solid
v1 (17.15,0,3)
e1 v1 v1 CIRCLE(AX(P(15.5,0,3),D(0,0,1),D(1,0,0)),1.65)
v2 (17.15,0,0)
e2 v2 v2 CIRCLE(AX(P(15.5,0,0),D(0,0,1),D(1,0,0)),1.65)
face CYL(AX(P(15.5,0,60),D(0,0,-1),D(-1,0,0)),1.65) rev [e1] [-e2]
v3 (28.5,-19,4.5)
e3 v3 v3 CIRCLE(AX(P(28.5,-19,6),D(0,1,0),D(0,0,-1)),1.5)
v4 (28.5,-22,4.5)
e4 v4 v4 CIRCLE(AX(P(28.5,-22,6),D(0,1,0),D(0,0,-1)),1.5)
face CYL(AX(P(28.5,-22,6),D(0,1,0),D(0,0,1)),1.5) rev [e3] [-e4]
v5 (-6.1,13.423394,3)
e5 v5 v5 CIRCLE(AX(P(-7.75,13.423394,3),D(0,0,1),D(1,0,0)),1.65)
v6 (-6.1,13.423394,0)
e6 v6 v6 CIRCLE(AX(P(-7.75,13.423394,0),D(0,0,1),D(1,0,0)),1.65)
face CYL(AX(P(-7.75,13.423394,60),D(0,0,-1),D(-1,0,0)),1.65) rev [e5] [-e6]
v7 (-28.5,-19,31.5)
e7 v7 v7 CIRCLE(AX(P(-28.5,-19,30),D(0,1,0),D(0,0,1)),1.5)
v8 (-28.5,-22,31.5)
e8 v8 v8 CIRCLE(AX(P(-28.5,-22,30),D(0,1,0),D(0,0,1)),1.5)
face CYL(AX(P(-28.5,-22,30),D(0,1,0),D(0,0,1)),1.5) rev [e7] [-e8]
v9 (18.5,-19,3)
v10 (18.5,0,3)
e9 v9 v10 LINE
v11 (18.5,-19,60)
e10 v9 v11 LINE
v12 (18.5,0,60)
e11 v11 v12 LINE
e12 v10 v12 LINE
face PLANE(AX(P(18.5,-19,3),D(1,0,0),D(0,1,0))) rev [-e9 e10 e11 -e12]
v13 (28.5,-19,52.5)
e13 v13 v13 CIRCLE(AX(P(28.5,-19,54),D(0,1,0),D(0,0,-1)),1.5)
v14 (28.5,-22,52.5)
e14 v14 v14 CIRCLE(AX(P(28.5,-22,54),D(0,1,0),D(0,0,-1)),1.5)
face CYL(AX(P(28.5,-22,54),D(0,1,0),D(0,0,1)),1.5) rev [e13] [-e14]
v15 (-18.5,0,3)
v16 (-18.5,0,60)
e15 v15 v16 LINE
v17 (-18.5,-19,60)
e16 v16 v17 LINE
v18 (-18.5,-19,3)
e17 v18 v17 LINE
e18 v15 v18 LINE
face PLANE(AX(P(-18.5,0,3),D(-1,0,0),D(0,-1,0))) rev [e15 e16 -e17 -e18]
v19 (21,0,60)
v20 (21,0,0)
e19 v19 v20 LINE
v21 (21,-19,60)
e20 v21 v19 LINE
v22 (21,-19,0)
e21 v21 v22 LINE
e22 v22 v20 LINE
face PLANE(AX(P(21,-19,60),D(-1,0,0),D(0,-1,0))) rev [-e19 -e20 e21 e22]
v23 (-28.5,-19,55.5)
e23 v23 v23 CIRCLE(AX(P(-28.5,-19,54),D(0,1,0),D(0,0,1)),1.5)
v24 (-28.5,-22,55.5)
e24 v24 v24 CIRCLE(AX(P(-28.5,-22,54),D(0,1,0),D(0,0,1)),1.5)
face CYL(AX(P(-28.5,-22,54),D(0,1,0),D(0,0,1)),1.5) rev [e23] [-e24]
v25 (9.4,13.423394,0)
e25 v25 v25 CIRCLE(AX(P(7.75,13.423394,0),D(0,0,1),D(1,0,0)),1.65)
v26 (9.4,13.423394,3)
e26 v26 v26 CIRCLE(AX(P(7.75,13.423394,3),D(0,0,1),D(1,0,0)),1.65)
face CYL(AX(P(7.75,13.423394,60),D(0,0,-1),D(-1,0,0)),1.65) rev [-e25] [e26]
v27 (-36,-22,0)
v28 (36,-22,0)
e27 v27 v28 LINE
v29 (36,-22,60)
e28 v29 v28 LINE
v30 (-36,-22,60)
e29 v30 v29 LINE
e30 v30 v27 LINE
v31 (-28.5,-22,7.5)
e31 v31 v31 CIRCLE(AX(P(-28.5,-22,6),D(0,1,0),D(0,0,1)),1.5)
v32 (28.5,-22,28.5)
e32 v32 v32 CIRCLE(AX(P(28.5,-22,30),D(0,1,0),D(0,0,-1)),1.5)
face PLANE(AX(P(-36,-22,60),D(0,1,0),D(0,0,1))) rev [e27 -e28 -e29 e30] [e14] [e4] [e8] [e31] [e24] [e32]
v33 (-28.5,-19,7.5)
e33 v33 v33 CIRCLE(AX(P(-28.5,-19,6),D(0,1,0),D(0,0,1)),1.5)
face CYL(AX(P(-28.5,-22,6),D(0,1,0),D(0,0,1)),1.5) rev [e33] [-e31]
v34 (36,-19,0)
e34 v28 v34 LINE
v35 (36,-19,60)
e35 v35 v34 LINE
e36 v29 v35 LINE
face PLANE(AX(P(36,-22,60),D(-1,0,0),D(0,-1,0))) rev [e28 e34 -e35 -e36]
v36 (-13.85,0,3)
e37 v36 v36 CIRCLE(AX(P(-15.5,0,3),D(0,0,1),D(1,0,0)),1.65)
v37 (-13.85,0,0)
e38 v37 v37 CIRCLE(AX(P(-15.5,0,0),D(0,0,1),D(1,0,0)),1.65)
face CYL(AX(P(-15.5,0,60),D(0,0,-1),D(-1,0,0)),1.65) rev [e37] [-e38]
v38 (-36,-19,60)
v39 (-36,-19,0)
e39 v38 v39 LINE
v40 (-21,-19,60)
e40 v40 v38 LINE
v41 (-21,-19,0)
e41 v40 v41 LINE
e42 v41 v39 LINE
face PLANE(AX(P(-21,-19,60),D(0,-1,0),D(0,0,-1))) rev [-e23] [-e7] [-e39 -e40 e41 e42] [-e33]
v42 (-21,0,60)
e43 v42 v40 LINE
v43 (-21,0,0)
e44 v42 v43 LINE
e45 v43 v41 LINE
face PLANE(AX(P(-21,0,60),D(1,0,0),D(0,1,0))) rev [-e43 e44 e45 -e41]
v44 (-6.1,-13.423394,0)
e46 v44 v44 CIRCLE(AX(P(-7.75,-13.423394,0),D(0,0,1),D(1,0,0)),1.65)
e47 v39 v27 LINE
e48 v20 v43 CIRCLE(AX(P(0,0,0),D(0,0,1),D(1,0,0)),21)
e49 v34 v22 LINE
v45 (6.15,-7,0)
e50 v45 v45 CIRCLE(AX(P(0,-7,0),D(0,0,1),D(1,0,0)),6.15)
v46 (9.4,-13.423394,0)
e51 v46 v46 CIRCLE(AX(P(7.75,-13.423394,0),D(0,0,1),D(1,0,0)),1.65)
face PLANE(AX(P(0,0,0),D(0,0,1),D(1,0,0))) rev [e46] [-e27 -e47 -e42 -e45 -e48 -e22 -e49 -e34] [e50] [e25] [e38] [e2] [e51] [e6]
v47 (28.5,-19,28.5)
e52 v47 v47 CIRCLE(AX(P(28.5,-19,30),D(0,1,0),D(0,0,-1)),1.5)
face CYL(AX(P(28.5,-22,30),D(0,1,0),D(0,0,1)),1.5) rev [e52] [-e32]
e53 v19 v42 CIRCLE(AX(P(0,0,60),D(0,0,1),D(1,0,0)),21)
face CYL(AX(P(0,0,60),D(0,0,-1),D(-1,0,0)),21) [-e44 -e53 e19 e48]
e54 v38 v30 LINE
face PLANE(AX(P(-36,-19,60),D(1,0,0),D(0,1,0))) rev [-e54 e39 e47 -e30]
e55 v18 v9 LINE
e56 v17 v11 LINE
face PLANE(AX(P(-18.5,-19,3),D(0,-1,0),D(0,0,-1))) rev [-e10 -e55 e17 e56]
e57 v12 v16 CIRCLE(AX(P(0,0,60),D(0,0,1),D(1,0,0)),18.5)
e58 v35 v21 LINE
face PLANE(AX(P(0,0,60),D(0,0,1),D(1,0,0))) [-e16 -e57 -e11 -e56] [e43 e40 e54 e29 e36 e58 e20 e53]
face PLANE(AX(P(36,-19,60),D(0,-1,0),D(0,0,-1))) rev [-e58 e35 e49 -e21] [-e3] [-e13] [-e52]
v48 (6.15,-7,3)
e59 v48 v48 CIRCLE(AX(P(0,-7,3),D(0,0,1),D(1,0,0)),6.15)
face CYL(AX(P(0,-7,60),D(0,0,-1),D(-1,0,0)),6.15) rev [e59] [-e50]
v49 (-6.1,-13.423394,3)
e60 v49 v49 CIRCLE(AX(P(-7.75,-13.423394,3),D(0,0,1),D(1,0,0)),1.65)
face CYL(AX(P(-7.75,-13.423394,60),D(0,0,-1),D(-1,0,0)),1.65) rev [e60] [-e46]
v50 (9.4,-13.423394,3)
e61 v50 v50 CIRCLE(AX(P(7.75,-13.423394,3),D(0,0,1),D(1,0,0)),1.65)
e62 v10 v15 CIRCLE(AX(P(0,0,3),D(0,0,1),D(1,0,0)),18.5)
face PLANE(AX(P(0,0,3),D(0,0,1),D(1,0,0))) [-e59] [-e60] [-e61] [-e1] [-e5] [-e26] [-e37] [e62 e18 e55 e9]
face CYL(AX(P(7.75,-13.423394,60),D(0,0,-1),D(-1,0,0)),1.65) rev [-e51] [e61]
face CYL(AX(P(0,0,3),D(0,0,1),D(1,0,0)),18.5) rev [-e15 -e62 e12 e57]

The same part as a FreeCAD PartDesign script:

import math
import FreeCAD as App
import Part
import Sketcher

doc = App.newDocument("Part")
params = doc.addObject("Spreadsheet::Sheet", "Params")
for row, (alias, value) in enumerate([
    ("sketch1_radius", "21 mm"),
    ("sketch1_diameter", "3.3 mm"),
    ("sketch1_diameter2", "12.3 mm"),
    ("sketch1_width", "15 mm"),
    ("sketch1_height", "19 mm"),
    ("pad1_length", "60 mm"),
    ("sketch2_radius", "18.5 mm"),
    ("sketch2_height", "19 mm"),
    ("pocket1_length", "57 mm"),
    ("sketch3_diameter", "3 mm"),
], start=1):
    params.set(f"A{row}", alias)
    params.set(f"B{row}", "=" + value)
    params.setAlias(f"B{row}", alias)

body = doc.addObject("PartDesign::Body", "Body")

# Sketch on XY plane
sketch1 = doc.addObject("Sketcher::SketchObject", "Sketch")
body.addObject(sketch1)
sketch1.AttachmentSupport = (doc.XY_Plane, [""])
sketch1.MapMode = "FlatFace"
sketch1.addGeometry(Part.LineSegment(App.Vector(-21, 0, 0), App.Vector(-21, -19, 0)), False)
sketch1.addGeometry(Part.LineSegment(App.Vector(-21, -19, 0), App.Vector(-36, -19, 0)), False)
sketch1.addGeometry(Part.LineSegment(App.Vector(-36, -19, 0), App.Vector(-36, -22, 0)), False)
sketch1.addGeometry(Part.LineSegment(App.Vector(-36, -22, 0), App.Vector(36, -22, 0)), False)
sketch1.addGeometry(Part.LineSegment(App.Vector(36, -22, 0), App.Vector(36, -19, 0)), False)
sketch1.addGeometry(Part.LineSegment(App.Vector(36, -19, 0), App.Vector(21, -19, 0)), False)
sketch1.addGeometry(Part.LineSegment(App.Vector(21, -19, 0), App.Vector(21, 0, 0)), False)
sketch1.addGeometry(Part.ArcOfCircle(Part.Circle(App.Vector(0, 0, 0), App.Vector(0, 0, 1), 21), math.radians(0), math.radians(180)), False)
sketch1.addGeometry(Part.Circle(App.Vector(-7.8, -13.4, 0), App.Vector(0, 0, 1), 1.6), False)
sketch1.addGeometry(Part.Circle(App.Vector(7.8, -13.4, 0), App.Vector(0, 0, 1), 1.6), False)
sketch1.addGeometry(Part.Circle(App.Vector(0, -7, 0), App.Vector(0, 0, 1), 6.2), False)
sketch1.addGeometry(Part.Circle(App.Vector(-15.5, 0, 0), App.Vector(0, 0, 1), 1.6), False)
sketch1.addGeometry(Part.Circle(App.Vector(-7.8, 13.4, 0), App.Vector(0, 0, 1), 1.6), False)
sketch1.addGeometry(Part.Circle(App.Vector(15.5, 0, 0), App.Vector(0, 0, 1), 1.6), False)
sketch1.addGeometry(Part.Circle(App.Vector(7.8, 13.4, 0), App.Vector(0, 0, 1), 1.6), False)
sketch1.addConstraint(Sketcher.Constraint("Coincident", 0, 2, 1, 1))
sketch1.addConstraint(Sketcher.Constraint("Coincident", 1, 2, 2, 1))
sketch1.addConstraint(Sketcher.Constraint("Coincident", 2, 2, 3, 1))
sketch1.addConstraint(Sketcher.Constraint("Coincident", 3, 2, 4, 1))
sketch1.addConstraint(Sketcher.Constraint("Coincident", 4, 2, 5, 1))
sketch1.addConstraint(Sketcher.Constraint("Coincident", 5, 2, 6, 1))
sketch1.addConstraint(Sketcher.Constraint("Tangent", 6, 2, 7, 1))
sketch1.addConstraint(Sketcher.Constraint("Tangent", 7, 2, 0, 1))
sketch1.addConstraint(Sketcher.Constraint("Vertical", 0))
sketch1.addConstraint(Sketcher.Constraint("Horizontal", 1))
sketch1.addConstraint(Sketcher.Constraint("Vertical", 2))
sketch1.addConstraint(Sketcher.Constraint("Horizontal", 3))
sketch1.addConstraint(Sketcher.Constraint("Vertical", 4))
sketch1.addConstraint(Sketcher.Constraint("Horizontal", 5))
sketch1.addConstraint(Sketcher.Constraint("Vertical", 6))
sketch1.addConstraint(Sketcher.Constraint("Coincident", 7, 3, -1, 1))
sketch1.addConstraint(Sketcher.Constraint("Equal", 8, 9))
sketch1.addConstraint(Sketcher.Constraint("Equal", 9, 11))
sketch1.addConstraint(Sketcher.Constraint("Equal", 11, 12))
sketch1.addConstraint(Sketcher.Constraint("Equal", 12, 13))
sketch1.addConstraint(Sketcher.Constraint("Equal", 13, 14))
sketch1.addConstraint(Sketcher.Constraint("Symmetric", 9, 3, 12, 3, -1, 1))
sketch1.addConstraint(Sketcher.Constraint("Symmetric", 11, 3, 13, 3, -1, 1))
sketch1.addConstraint(Sketcher.Constraint("Symmetric", 8, 3, 14, 3, -1, 1))
sketch1.addConstraint(Sketcher.Constraint("Symmetric", 8, 3, 9, 3, -2))
sketch1.addConstraint(Sketcher.Constraint("Symmetric", 1, 2, 4, 2, -2))
sketch1.addConstraint(Sketcher.Constraint("PointOnObject", 10, 3, -2))
sketch1.addConstraint(Sketcher.Constraint("PointOnObject", 11, 3, -1))
sketch1.addConstraint(Sketcher.Constraint("Radius", 7, 21.0))
sketch1.addConstraint(Sketcher.Constraint("Diameter", 8, 3.3))
sketch1.addConstraint(Sketcher.Constraint("Diameter", 10, 12.3))
sketch1.addConstraint(Sketcher.Constraint("DistanceX", 1, 2, 1, 1, 15.0))
sketch1.addConstraint(Sketcher.Constraint("DistanceY", 0, 2, 0, 1, 19.0))
sketch1.addConstraint(Sketcher.Constraint("DistanceY", 2, 2, 2, 1, 3.0))
sketch1.addConstraint(Sketcher.Constraint("DistanceY", 10, 3, -1, 1, 7.0))
sketch1.addConstraint(Sketcher.Constraint("DistanceX", 11, 3, -1, 1, 15.5))
sketch1.addConstraint(Sketcher.Constraint("DistanceX", 8, 3, 9, 3, 15.5))
sketch1.addConstraint(Sketcher.Constraint("DistanceY", 8, 3, -1, 1, 13.423394))
sketch1.setExpression("Constraints[28]", "Params.sketch1_radius")
sketch1.setExpression("Constraints[29]", "Params.sketch1_diameter")
sketch1.setExpression("Constraints[30]", "Params.sketch1_diameter2")
sketch1.setExpression("Constraints[31]", "Params.sketch1_width")
sketch1.setExpression("Constraints[32]", "Params.sketch1_height")
pad1 = doc.addObject("PartDesign::Pad", "Pad")
body.addObject(pad1)
pad1.Profile = sketch1
pad1.setExpression("Length", "Params.pad1_length")

# Sketch on XY plane
sketch2 = doc.addObject("Sketcher::SketchObject", "Sketch001")
body.addObject(sketch2)
sketch2.AttachmentSupport = (doc.XY_Plane, [""])
sketch2.MapMode = "FlatFace"
sketch2.AttachmentOffset = App.Placement(App.Vector(0, 0, 60), App.Rotation())
sketch2.addGeometry(Part.LineSegment(App.Vector(-18, 0, 0), App.Vector(-18, -19, 0)), False)
sketch2.addGeometry(Part.LineSegment(App.Vector(-18, -19, 0), App.Vector(18, -19, 0)), False)
sketch2.addGeometry(Part.LineSegment(App.Vector(18, -19, 0), App.Vector(18, 0, 0)), False)
sketch2.addGeometry(Part.ArcOfCircle(Part.Circle(App.Vector(0, 0, 0), App.Vector(0, 0, 1), 18), math.radians(0), math.radians(180)), False)
sketch2.addConstraint(Sketcher.Constraint("Coincident", 0, 2, 1, 1))
sketch2.addConstraint(Sketcher.Constraint("Coincident", 1, 2, 2, 1))
sketch2.addConstraint(Sketcher.Constraint("Tangent", 2, 2, 3, 1))
sketch2.addConstraint(Sketcher.Constraint("Tangent", 3, 2, 0, 1))
sketch2.addConstraint(Sketcher.Constraint("Vertical", 0))
sketch2.addConstraint(Sketcher.Constraint("Horizontal", 1))
sketch2.addConstraint(Sketcher.Constraint("Vertical", 2))
sketch2.addConstraint(Sketcher.Constraint("Coincident", 3, 3, -1, 1))
sketch2.addConstraint(Sketcher.Constraint("Radius", 3, 18.5))
sketch2.addConstraint(Sketcher.Constraint("DistanceY", 0, 2, 0, 1, 19.0))
sketch2.setExpression("Constraints[8]", "Params.sketch2_radius")
sketch2.setExpression("Constraints[9]", "Params.sketch2_height")
pocket1 = doc.addObject("PartDesign::Pocket", "Pocket")
body.addObject(pocket1)
pocket1.Profile = sketch2
pocket1.setExpression("Length", "Params.pocket1_length")

# Sketch on XZ plane
sketch3 = doc.addObject("Sketcher::SketchObject", "Sketch002")
body.addObject(sketch3)
sketch3.AttachmentSupport = (doc.XZ_Plane, [""])
sketch3.MapMode = "FlatFace"
sketch3.AttachmentOffset = App.Placement(App.Vector(0, 0, 19), App.Rotation())
sketch3.addGeometry(Part.Circle(App.Vector(-28.5, 30, 0), App.Vector(0, 0, 1), 1.5), False)
sketch3.addGeometry(Part.Circle(App.Vector(-28.5, 6, 0), App.Vector(0, 0, 1), 1.5), False)
sketch3.addGeometry(Part.Circle(App.Vector(-28.5, 54, 0), App.Vector(0, 0, 1), 1.5), False)
sketch3.addGeometry(Part.Circle(App.Vector(28.5, 54, 0), App.Vector(0, 0, 1), 1.5), False)
sketch3.addGeometry(Part.Circle(App.Vector(28.5, 6, 0), App.Vector(0, 0, 1), 1.5), False)
sketch3.addGeometry(Part.Circle(App.Vector(28.5, 30, 0), App.Vector(0, 0, 1), 1.5), False)
sketch3.addConstraint(Sketcher.Constraint("Equal", 0, 1))
sketch3.addConstraint(Sketcher.Constraint("Equal", 1, 2))
sketch3.addConstraint(Sketcher.Constraint("Equal", 2, 3))
sketch3.addConstraint(Sketcher.Constraint("Equal", 3, 4))
sketch3.addConstraint(Sketcher.Constraint("Equal", 4, 5))
sketch3.addConstraint(Sketcher.Constraint("Symmetric", 2, 3, 3, 3, -2))
sketch3.addConstraint(Sketcher.Constraint("Symmetric", 1, 3, 4, 3, -2))
sketch3.addConstraint(Sketcher.Constraint("Symmetric", 0, 3, 5, 3, -2))
sketch3.addConstraint(Sketcher.Constraint("Vertical", 0, 3, 1, 3))
sketch3.addConstraint(Sketcher.Constraint("Vertical", 1, 3, 2, 3))
sketch3.addConstraint(Sketcher.Constraint("Diameter", 0, 3.0))
sketch3.addConstraint(Sketcher.Constraint("DistanceY", -1, 1, 0, 3, 30.0))
sketch3.addConstraint(Sketcher.Constraint("DistanceY", -1, 1, 1, 3, 6.0))
sketch3.addConstraint(Sketcher.Constraint("DistanceY", -1, 1, 2, 3, 54.0))
sketch3.addConstraint(Sketcher.Constraint("DistanceX", 2, 3, 3, 3, 57.0))
sketch3.setExpression("Constraints[10]", "Params.sketch3_diameter")
pocket2 = doc.addObject("PartDesign::Pocket", "Pocket001")
body.addObject(pocket2)
pocket2.Profile = sketch3
pocket2.Type = "ThroughAll"
pocket2.Reversed = True

doc.recompute()
